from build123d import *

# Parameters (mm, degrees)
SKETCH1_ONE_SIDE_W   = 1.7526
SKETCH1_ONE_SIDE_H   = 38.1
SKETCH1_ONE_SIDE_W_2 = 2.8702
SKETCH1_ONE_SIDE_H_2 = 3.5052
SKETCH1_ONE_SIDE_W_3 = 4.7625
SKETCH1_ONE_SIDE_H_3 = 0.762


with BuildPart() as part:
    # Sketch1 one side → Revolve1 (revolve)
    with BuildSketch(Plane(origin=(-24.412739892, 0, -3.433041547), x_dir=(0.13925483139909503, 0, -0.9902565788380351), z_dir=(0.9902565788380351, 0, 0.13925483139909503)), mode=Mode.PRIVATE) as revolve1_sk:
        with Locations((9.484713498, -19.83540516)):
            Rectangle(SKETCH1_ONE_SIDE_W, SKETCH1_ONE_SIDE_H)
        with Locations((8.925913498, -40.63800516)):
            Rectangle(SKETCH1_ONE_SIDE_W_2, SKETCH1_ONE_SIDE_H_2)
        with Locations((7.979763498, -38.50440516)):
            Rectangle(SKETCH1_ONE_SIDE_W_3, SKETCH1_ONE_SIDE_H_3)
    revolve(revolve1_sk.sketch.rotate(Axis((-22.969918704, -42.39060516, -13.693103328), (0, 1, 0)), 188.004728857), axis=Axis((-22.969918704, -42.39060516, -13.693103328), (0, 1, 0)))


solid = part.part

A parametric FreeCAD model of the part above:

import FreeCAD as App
import Part
import Sketcher
Q = App.Units.Quantity

doc = App.newDocument("Part")
params = doc.addObject("Spreadsheet::Sheet", "Params")
for row, (alias, value) in enumerate([
    ("sketch1_height", "1.47 in"),
    ("sketch1_height2", "0.03 in"),
    ("sketch1_width", "0.069 in"),
    ("sketch1_width2", "0.113 in"),
    ("sketch1_height3", "1.638 in"),
    ("revolution_angle", "360 deg"),
], start=1):
    params.set(f"A{row}", alias)
    params.set(f"B{row}", "=" + value)
    params.setAlias(f"B{row}", alias)

body = doc.addObject("PartDesign::Body", "Body")

# Sketch on an angled plane
sketch1 = body.newObject("Sketcher::SketchObject", "Sketch")
sketch1.Placement = App.Placement(App.Vector(-24.41274, 0, -3.433042), App.Rotation(App.Vector(0.139254831, 0, -0.990256579), App.Vector(0, 1, 0), App.Vector(0.990256579, 0, 0.139254831), "ZXY"))
sketch1.addGeometry([
    Part.LineSegment(App.Vector(10.4, -42.4, 0), App.Vector(10.4, -0.8, 0)),  # 0
    Part.LineSegment(App.Vector(10.4, -0.8, 0), App.Vector(8.6, -0.8, 0)),  # 1
    Part.LineSegment(App.Vector(8.6, -0.8, 0), App.Vector(8.6, -38.1, 0)),  # 2
    Part.LineSegment(App.Vector(8.6, -38.1, 0), App.Vector(5.6, -38.1, 0)),  # 3
    Part.LineSegment(App.Vector(5.6, -38.1, 0), App.Vector(5.6, -38.9, 0)),  # 4
    Part.LineSegment(App.Vector(5.6, -38.9, 0), App.Vector(7.5, -38.9, 0)),  # 5
    Part.LineSegment(App.Vector(7.5, -38.9, 0), App.Vector(7.5, -42.4, 0)),  # 6
    Part.LineSegment(App.Vector(7.5, -42.4, 0), App.Vector(10.4, -42.4, 0)),  # 7
], False)
sketch1.addGeometry(Part.LineSegment(App.Vector(10.4, -42.4, 0), App.Vector(10.4, -0.8, 0)), True)  # axis
sketch1.addConstraint([
    Sketcher.Constraint("Coincident", 0, 2, 1, 1),
    Sketcher.Constraint("Coincident", 1, 2, 2, 1),
    Sketcher.Constraint("Coincident", 2, 2, 3, 1),
    Sketcher.Constraint("Coincident", 3, 2, 4, 1),
    Sketcher.Constraint("Coincident", 4, 2, 5, 1),
    Sketcher.Constraint("Coincident", 5, 2, 6, 1),
    Sketcher.Constraint("Coincident", 6, 2, 7, 1),
    Sketcher.Constraint("Coincident", 7, 2, 0, 1),
    Sketcher.Constraint("Vertical", 0),
    Sketcher.Constraint("Horizontal", 1),
    Sketcher.Constraint("Vertical", 2),
    Sketcher.Constraint("Horizontal", 3),
    Sketcher.Constraint("Vertical", 4),
    Sketcher.Constraint("Horizontal", 5),
    Sketcher.Constraint("Vertical", 6),
    Sketcher.Constraint("Horizontal", 7),
    Sketcher.Constraint("Vertical", 8),
    Sketcher.Constraint("Coincident", 8, 1, 7, 2),
    Sketcher.Constraint("Horizontal", 1, 2, 8, 2),
    Sketcher.Constraint("DistanceY", 2, 2, 2, 1, Q("1.47 in")),
    Sketcher.Constraint("DistanceY", 4, 2, 4, 1, Q("0.03 in")),
    Sketcher.Constraint("DistanceX", 1, 2, 1, 1, Q("0.069 in")),
    Sketcher.Constraint("DistanceX", 7, 1, 7, 2, Q("0.113 in")),
    Sketcher.Constraint("DistanceY", 0, 1, 0, 2, Q("1.638 in")),
    Sketcher.Constraint("DistanceX", 3, 2, 3, 1, Q("0.1185 in")),
    Sketcher.Constraint("DistanceX", -1, 1, 0, 2, 10.361014),
    Sketcher.Constraint("DistanceY", 0, 2, -1, 1, 0.785405),
])
sketch1.setExpression("Constraints[19]", "Params.sketch1_height")
sketch1.setExpression("Constraints[20]", "Params.sketch1_height2")
sketch1.setExpression("Constraints[21]", "Params.sketch1_width")
sketch1.setExpression("Constraints[22]", "Params.sketch1_width2")
sketch1.setExpression("Constraints[23]", "Params.sketch1_height3")
revolution = body.newObject("PartDesign::Revolution", "Revolution")
revolution.Profile = sketch1
revolution.ReferenceAxis = (sketch1, ["Axis0"])
revolution.setExpression("Angle", "Params.revolution_angle")

doc.recompute()
